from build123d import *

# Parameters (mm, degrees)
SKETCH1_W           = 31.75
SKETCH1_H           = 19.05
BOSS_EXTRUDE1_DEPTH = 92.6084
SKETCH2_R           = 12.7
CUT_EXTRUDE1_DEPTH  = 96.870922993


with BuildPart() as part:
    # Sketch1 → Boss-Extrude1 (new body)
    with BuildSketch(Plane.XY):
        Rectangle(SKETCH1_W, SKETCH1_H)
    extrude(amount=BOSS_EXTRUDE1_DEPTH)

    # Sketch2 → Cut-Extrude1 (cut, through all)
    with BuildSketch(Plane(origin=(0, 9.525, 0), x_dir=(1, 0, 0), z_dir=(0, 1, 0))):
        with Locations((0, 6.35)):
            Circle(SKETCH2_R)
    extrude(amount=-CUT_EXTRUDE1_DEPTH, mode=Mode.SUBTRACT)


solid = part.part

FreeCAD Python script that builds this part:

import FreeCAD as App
import Part
import Sketcher
from FreeCAD import Vector
Q = App.Units.Quantity

doc = App.newDocument("Part")
body = doc.addObject("PartDesign::Body", "Body")

# Sketch on XY plane
sketch1 = body.newObject("Sketcher::SketchObject", "Sketch")
sketch1.AttachmentSupport = (doc.getObject("XY_Plane"), [""])
sketch1.MapMode = "FlatFace"
sketch1.addGeometry(Part.LineSegment(Vector(-16, 10, 0), Vector(-16, -10, 0)), False)
sketch1.addGeometry(Part.LineSegment(Vector(-16, -10, 0), Vector(16, -10, 0)), False)
sketch1.addGeometry(Part.LineSegment(Vector(16, -10, 0), Vector(16, 10, 0)), False)
sketch1.addGeometry(Part.LineSegment(Vector(16, 10, 0), Vector(-16, 10, 0)), False)
sketch1.addConstraint(Sketcher.Constraint("Coincident", 0, 2, 1, 1))
sketch1.addConstraint(Sketcher.Constraint("Coincident", 1, 2, 2, 1))
sketch1.addConstraint(Sketcher.Constraint("Coincident", 2, 2, 3, 1))
sketch1.addConstraint(Sketcher.Constraint("Coincident", 3, 2, 0, 1))
sketch1.addConstraint(Sketcher.Constraint("Vertical", 0))
sketch1.addConstraint(Sketcher.Constraint("Horizontal", 1))
sketch1.addConstraint(Sketcher.Constraint("Vertical", 2))
sketch1.addConstraint(Sketcher.Constraint("Horizontal", 3))
sketch1.addConstraint(Sketcher.Constraint("Symmetric", 0, 2, 2, 2, -1, 1))
sketch1.addConstraint(Sketcher.Constraint("DistanceX", 1, 1, 1, 2, Q("1.25 in")))
sketch1.addConstraint(Sketcher.Constraint("DistanceY", 0, 2, 0, 1, Q("0.75 in")))
pad1 = body.newObject("PartDesign::Pad", "Pad")
pad1.Profile = sketch1
pad1.Length = Q("3.646 in")

# Sketch on XZ plane
sketch2 = body.newObject("Sketcher::SketchObject", "Sketch001")
sketch2.AttachmentSupport = (doc.getObject("XZ_Plane"), [""])
sketch2.MapMode = "FlatFace"
sketch2.AttachmentOffset = App.Placement(Vector(0, 0, -0.375 * 25.4), App.Rotation())
sketch2.addGeometry(Part.Circle(Vector(0, -6, 0), Vector(0, 0, 1), 13), False)
sketch2.addConstraint(Sketcher.Constraint("PointOnObject", 0, 3, -2))
sketch2.addConstraint(Sketcher.Constraint("Diameter", 0, Q("1 in")))
sketch2.addConstraint(Sketcher.Constraint("DistanceY", 0, 3, -1, 1, Q("0.25 in")))
pocket1 = body.newObject("PartDesign::Pocket", "Pocket")
pocket1.Profile = sketch2
pocket1.Type = "ThroughAll"
pocket1.Reversed = True

doc.recompute()
